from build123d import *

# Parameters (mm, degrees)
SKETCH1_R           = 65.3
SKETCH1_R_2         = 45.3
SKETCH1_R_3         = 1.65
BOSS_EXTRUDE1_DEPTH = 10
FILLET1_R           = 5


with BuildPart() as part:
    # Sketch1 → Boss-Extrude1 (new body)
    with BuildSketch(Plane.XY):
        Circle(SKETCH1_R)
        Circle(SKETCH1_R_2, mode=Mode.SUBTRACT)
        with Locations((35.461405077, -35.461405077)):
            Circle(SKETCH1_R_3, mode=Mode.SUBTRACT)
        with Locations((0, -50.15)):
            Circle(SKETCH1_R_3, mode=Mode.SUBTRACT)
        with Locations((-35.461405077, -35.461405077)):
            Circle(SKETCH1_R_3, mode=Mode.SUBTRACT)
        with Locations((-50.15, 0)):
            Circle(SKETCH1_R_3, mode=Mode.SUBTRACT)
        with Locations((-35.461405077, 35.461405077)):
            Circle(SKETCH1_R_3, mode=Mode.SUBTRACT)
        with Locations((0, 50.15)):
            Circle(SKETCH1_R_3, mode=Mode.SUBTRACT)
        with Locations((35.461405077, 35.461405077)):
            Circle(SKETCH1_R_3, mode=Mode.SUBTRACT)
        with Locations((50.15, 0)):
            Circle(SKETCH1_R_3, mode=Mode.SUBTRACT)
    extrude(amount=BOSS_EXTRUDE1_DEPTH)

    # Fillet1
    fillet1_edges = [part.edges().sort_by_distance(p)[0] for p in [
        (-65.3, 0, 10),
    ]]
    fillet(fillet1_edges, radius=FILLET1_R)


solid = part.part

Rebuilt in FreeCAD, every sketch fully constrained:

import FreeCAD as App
import Part
import Sketcher
from FreeCAD import Vector


def edges_at(feature, points):
    """Names of the edges that pass closest to the given points."""
    edges = feature.Shape.Edges
    near = lambda p: min(range(len(edges)), key=lambda i: edges[i].distToShape(Part.Vertex(*p))[0])
    return sorted({f"Edge{near(p) + 1}" for p in points})

doc = App.newDocument("Part")
body = doc.addObject("PartDesign::Body", "Body")

# Sketch on XY plane
sketch1 = body.newObject("Sketcher::SketchObject", "Sketch")
sketch1.AttachmentSupport = (doc.getObject("XY_Plane"), [""])
sketch1.MapMode = "FlatFace"
sketch1.addGeometry([
    Part.Circle(Vector(0, 0, 0), Vector(0, 0, 1), 65.3),  # 0
    Part.Circle(Vector(-35.5, -35.5, 0), Vector(0, 0, 1), 1.6),  # 1
    Part.Circle(Vector(0, -50.1, 0), Vector(0, 0, 1), 1.6),  # 2
    Part.Circle(Vector(-50.1, 0, 0), Vector(0, 0, 1), 1.6),  # 3
    Part.Circle(Vector(0, 0, 0), Vector(0, 0, 1), 45.3),  # 4
    Part.Circle(Vector(35.5, -35.5, 0), Vector(0, 0, 1), 1.6),  # 5
    Part.Circle(Vector(50.1, 0, 0), Vector(0, 0, 1), 1.6),  # 6
    Part.Circle(Vector(-35.5, 35.5, 0), Vector(0, 0, 1), 1.6),  # 7
    Part.Circle(Vector(0, 50.1, 0), Vector(0, 0, 1), 1.6),  # 8
    Part.Circle(Vector(35.5, 35.5, 0), Vector(0, 0, 1), 1.6),  # 9
], False)
sketch1.addConstraint([
    Sketcher.Constraint("Coincident", 0, 3, -1, 1),
    Sketcher.Constraint("Coincident", 4, 3, -1, 1),
    Sketcher.Constraint("Equal", 1, 2),
    Sketcher.Constraint("Equal", 2, 3),
    Sketcher.Constraint("Equal", 3, 5),
    Sketcher.Constraint("Equal", 5, 6),
    Sketcher.Constraint("Equal", 6, 7),
    Sketcher.Constraint("Equal", 7, 8),
    Sketcher.Constraint("Equal", 8, 9),
    Sketcher.Constraint("Symmetric", 3, 3, 6, 3, -1, 1),
    Sketcher.Constraint("Symmetric", 5, 3, 7, 3, -1, 1),
    Sketcher.Constraint("Symmetric", 2, 3, 8, 3, -1, 1),
    Sketcher.Constraint("Symmetric", 1, 3, 9, 3, -1, 1),
    Sketcher.Constraint("Symmetric", 1, 3, 5, 3, -2),
    Sketcher.Constraint("PointOnObject", 2, 3, -2),
    Sketcher.Constraint("PointOnObject", 3, 3, -1),
    Sketcher.Constraint("Diameter", 0, 130.6),
    Sketcher.Constraint("Diameter", 1, 3.3),
    Sketcher.Constraint("Diameter", 4, 90.6),
    Sketcher.Constraint("DistanceY", 2, 3, -1, 1, 50.15),
    Sketcher.Constraint("DistanceX", 3, 3, -1, 1, 50.15),
    Sketcher.Constraint("DistanceX", 1, 3, 5, 3, 70.92281),
    Sketcher.Constraint("DistanceY", 1, 3, 7, 3, 70.92281),
])
pad1 = body.newObject("PartDesign::Pad", "Pad")
pad1.Profile = sketch1
pad1.Length = 10
doc.recompute()

fillet = body.newObject("PartDesign::Fillet", "Fillet")
fillet.Base = (pad1, edges_at(pad1, [(-65.3, 0, 10)]))
fillet.Radius = 5

doc.recompute()
